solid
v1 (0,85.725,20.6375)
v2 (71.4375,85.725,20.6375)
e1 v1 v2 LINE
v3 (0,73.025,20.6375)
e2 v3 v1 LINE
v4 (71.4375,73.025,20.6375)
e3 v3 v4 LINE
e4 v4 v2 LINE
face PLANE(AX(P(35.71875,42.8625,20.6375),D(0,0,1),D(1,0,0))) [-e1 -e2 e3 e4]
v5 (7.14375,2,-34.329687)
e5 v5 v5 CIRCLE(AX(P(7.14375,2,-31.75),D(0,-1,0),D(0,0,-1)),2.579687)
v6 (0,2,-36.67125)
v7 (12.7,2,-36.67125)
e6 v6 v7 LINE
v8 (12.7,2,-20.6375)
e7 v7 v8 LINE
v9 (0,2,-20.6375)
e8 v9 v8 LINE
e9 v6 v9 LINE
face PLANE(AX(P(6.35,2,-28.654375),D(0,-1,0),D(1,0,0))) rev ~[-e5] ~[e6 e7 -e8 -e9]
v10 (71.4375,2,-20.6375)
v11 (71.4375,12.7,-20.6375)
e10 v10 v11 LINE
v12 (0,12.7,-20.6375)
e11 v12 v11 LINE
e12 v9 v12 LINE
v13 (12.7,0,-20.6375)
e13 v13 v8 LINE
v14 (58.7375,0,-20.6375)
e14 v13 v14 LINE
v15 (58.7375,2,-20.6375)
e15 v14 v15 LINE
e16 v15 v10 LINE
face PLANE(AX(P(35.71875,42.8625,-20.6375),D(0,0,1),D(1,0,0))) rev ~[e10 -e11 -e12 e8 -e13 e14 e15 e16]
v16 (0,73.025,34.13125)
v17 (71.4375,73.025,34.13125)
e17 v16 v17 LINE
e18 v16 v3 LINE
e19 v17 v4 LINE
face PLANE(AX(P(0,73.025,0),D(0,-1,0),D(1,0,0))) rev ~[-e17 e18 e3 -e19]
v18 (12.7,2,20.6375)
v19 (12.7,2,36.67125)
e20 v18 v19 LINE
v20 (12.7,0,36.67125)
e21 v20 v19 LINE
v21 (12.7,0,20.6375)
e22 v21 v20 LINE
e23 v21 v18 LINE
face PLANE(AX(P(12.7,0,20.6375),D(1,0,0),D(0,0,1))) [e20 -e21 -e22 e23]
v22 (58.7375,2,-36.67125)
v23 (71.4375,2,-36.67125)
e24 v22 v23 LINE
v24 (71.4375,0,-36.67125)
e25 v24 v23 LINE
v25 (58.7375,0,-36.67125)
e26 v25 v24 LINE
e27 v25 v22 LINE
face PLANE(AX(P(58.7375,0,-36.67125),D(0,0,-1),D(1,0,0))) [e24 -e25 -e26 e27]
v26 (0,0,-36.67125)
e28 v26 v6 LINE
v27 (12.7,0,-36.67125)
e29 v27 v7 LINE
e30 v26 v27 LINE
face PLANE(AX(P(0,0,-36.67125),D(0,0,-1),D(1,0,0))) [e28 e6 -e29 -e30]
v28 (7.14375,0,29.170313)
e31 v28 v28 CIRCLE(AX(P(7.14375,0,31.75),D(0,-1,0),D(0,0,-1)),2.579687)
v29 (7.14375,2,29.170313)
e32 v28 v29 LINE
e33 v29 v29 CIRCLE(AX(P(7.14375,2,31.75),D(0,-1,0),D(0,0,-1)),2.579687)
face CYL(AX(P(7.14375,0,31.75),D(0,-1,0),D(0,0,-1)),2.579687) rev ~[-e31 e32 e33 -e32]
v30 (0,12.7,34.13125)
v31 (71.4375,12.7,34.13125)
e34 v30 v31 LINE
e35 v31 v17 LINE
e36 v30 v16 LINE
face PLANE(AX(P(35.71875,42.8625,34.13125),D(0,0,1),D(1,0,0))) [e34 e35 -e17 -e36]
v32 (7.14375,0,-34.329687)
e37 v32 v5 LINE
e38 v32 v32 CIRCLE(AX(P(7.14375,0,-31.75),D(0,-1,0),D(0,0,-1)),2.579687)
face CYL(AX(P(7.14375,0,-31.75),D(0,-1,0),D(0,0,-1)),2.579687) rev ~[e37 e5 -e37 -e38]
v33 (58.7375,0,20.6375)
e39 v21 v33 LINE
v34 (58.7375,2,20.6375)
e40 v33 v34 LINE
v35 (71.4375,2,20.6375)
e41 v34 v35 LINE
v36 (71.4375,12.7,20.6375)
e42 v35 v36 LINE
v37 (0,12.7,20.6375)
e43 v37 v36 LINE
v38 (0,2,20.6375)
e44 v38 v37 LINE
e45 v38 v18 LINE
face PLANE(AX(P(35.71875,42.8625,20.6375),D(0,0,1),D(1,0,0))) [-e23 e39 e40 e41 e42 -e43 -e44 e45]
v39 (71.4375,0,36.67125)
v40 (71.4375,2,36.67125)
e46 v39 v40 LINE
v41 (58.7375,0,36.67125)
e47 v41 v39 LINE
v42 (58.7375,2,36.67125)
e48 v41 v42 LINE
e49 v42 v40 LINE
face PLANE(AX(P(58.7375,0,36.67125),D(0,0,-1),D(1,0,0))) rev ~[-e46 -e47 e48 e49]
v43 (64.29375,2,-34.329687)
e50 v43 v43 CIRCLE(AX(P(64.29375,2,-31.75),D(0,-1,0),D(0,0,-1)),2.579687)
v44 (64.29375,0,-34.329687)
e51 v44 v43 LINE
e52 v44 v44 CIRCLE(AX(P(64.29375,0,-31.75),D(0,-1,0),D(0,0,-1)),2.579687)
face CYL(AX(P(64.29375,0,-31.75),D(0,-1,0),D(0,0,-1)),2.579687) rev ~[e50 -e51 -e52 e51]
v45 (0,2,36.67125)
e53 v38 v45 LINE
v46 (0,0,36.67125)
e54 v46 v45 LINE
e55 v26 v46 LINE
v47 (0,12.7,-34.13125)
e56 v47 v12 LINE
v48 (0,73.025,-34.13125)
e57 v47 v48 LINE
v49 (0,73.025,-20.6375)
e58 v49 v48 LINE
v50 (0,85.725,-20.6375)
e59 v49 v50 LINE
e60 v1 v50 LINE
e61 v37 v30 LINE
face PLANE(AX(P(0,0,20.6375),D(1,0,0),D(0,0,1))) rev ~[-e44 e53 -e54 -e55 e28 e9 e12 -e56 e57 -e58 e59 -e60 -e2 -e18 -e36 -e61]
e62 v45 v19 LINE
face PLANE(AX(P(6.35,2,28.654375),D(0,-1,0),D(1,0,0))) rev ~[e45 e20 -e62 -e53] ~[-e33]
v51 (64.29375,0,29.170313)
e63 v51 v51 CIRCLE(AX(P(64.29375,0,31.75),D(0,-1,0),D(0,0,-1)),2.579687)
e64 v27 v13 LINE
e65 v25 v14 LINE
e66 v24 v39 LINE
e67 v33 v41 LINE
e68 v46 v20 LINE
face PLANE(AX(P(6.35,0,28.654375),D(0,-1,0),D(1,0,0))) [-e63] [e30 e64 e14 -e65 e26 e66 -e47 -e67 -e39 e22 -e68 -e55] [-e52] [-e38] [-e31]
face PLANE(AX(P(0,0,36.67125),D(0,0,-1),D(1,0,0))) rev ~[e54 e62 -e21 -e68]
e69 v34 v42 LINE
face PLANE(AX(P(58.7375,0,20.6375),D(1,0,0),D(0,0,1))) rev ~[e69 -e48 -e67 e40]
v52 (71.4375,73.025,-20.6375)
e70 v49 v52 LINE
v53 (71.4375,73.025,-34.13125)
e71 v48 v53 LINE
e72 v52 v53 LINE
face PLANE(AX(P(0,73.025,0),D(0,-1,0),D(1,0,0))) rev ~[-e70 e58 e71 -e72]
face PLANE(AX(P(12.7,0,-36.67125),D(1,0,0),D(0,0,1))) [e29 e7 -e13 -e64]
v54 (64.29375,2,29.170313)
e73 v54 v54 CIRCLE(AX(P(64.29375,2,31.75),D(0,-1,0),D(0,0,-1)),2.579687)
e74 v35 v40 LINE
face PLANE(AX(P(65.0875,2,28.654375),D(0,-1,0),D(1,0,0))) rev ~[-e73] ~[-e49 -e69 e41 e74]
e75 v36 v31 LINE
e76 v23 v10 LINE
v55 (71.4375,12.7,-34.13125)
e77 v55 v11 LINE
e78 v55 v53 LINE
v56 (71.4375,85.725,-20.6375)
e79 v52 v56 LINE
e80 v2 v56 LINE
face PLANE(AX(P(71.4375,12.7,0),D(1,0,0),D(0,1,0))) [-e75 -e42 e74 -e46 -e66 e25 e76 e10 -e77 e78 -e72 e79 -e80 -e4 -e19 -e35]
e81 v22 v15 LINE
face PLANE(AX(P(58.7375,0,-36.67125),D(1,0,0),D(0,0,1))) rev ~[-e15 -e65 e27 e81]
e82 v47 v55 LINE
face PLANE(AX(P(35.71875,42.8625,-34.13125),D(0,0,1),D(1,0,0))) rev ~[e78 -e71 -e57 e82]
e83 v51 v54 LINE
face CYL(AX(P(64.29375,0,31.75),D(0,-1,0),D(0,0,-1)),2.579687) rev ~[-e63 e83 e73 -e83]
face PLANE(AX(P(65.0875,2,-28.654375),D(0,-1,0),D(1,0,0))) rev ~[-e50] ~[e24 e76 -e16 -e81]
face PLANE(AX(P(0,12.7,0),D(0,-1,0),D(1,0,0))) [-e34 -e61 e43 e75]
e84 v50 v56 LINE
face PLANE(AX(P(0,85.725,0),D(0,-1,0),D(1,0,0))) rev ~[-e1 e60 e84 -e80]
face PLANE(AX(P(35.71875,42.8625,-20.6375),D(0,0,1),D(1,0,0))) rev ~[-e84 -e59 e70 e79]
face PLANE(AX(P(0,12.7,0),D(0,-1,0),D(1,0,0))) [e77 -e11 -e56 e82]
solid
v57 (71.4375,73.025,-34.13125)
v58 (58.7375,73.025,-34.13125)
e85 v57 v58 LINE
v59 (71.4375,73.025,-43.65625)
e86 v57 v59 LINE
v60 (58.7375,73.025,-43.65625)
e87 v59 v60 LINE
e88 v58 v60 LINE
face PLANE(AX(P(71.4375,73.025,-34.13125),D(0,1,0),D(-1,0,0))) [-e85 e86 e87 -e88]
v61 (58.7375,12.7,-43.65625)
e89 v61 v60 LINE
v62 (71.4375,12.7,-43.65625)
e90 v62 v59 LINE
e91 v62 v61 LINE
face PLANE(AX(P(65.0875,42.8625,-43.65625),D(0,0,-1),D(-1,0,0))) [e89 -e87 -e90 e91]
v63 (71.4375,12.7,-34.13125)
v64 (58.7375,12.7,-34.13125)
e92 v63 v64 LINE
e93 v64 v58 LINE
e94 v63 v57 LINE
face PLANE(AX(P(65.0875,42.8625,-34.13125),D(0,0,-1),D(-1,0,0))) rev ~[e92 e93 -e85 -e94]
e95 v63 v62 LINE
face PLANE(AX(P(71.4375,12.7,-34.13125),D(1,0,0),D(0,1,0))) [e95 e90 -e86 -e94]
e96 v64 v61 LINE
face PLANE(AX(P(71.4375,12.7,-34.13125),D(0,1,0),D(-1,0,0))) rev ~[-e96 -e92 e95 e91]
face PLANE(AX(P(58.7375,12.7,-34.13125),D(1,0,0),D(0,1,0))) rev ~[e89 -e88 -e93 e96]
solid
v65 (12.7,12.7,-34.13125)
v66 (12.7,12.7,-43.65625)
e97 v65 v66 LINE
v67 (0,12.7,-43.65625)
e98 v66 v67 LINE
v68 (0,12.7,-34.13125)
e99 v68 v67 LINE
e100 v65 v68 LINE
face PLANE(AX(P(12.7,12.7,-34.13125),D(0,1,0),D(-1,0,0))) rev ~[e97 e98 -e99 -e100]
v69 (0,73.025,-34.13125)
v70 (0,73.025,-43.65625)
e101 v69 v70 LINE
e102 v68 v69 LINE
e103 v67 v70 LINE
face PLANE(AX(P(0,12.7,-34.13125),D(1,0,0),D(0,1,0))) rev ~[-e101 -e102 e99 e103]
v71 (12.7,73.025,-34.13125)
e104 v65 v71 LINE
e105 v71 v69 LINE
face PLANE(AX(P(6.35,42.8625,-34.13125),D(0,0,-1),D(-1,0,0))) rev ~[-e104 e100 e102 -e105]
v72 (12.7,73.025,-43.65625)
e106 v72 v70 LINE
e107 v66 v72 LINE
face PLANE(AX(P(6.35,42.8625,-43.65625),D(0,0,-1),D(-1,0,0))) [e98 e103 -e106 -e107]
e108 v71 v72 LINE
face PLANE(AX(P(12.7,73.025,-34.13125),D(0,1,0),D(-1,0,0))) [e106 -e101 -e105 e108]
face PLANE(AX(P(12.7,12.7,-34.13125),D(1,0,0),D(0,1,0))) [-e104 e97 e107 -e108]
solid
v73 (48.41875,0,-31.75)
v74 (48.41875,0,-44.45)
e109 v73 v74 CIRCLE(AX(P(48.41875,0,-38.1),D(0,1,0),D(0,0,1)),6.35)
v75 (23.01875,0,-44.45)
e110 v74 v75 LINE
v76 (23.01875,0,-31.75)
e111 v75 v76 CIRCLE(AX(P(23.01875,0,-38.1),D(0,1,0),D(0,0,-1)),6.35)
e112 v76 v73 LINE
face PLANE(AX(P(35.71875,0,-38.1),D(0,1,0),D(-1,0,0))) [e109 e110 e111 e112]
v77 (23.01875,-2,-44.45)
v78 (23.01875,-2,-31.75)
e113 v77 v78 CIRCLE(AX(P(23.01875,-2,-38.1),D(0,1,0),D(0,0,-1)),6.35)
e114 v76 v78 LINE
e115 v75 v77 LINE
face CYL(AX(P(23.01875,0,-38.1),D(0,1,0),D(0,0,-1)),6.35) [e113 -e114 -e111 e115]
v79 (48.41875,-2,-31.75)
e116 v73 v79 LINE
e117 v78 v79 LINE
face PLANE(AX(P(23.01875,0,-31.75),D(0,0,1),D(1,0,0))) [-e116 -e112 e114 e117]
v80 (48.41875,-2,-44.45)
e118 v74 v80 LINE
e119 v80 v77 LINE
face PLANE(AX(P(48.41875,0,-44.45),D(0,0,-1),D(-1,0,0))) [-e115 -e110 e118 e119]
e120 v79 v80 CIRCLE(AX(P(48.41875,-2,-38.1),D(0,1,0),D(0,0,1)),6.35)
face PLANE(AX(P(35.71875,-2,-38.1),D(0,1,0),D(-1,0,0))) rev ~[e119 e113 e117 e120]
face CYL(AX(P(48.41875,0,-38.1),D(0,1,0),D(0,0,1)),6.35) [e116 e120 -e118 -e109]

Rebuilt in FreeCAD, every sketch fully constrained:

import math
import FreeCAD as App
import Part
import Sketcher
Q = App.Units.Quantity


def add_polygon(sketch, points):
    """Adds a closed chain of lines whose ends are joined by coincident constraints."""
    first, n = sketch.GeometryCount, len(points)
    for a, b in zip(points, points[1:] + points[:1]):
        sketch.addGeometry(Part.LineSegment(App.Vector(*a, 0), App.Vector(*b, 0)), False)
    for i in range(n):
        sketch.addConstraint(Sketcher.Constraint("Coincident", first + i, 2, first + (i + 1) % n, 1))

doc = App.newDocument("Part")
body = doc.addObject("PartDesign::Body", "Body")

# Sketch on XY plane
sketch1 = doc.addObject("Sketcher::SketchObject", "Sketch")
body.addObject(sketch1)
sketch1.AttachmentSupport = (doc.XY_Plane, [""])
sketch1.MapMode = "FlatFace"
add_polygon(sketch1, [(0, 86), (0, 0), (71, 0), (71, 86)])  # lines 0-3
sketch1.addConstraint(Sketcher.Constraint("Vertical", 0))
sketch1.addConstraint(Sketcher.Constraint("Horizontal", 1))
sketch1.addConstraint(Sketcher.Constraint("Vertical", 2))
sketch1.addConstraint(Sketcher.Constraint("Horizontal", 3))
sketch1.addConstraint(Sketcher.Constraint("Coincident", 0, 2, -1, 1))
sketch1.addConstraint(Sketcher.Constraint("DistanceX", 1, 1, 1, 2, Q("2.8125 in")))
sketch1.addConstraint(Sketcher.Constraint("DistanceY", 0, 2, 0, 1, Q("3.375 in")))
pad1 = doc.addObject("PartDesign::Pad", "Pad")
body.addObject(pad1)
pad1.Profile = sketch1
pad1.Length = Q("1.625 in")
pad1.Midplane = True

# Sketch on XY plane
sketch2 = doc.addObject("Sketcher::SketchObject", "Sketch001")
body.addObject(sketch2)
sketch2.AttachmentSupport = (doc.XY_Plane, [""])
sketch2.MapMode = "FlatFace"
add_polygon(sketch2, [(0, 73), (0, 13), (71, 13), (71, 73)])  # lines 0-3
sketch2.addConstraint(Sketcher.Constraint("Vertical", 0))
sketch2.addConstraint(Sketcher.Constraint("Horizontal", 1))
sketch2.addConstraint(Sketcher.Constraint("Vertical", 2))
sketch2.addConstraint(Sketcher.Constraint("Horizontal", 3))
sketch2.addConstraint(Sketcher.Constraint("PointOnObject", 0, 2, -2))
sketch2.addConstraint(Sketcher.Constraint("DistanceY", -1, 1, 0, 2, Q("0.5 in")))
sketch2.addConstraint(Sketcher.Constraint("DistanceX", 1, 1, 1, 2, Q("2.8125 in")))
sketch2.addConstraint(Sketcher.Constraint("DistanceY", 0, 2, 0, 1, Q("2.375 in")))
pad2 = doc.addObject("PartDesign::Pad", "Pad001")
body.addObject(pad2)
pad2.Profile = sketch2
pad2.Length = Q("2.6875 in")
pad2.Midplane = True

# Sketch on XZ plane
sketch3 = doc.addObject("Sketcher::SketchObject", "Sketch002")
body.addObject(sketch3)
sketch3.AttachmentSupport = (doc.XZ_Plane, [""])
sketch3.MapMode = "FlatFace"
add_polygon(sketch3, [(0, 37), (0, 21), (13, 21), (13, 37)])  # lines 0-3
add_polygon(sketch3, [(59, 37), (59, 21), (71, 21), (71, 37)])  # lines 4-7
add_polygon(sketch3, [(59, -21), (59, -37), (71, -37), (71, -21)])  # lines 8-11
add_polygon(sketch3, [(0, -21), (0, -37), (13, -37), (13, -21)])  # lines 12-15
sketch3.addConstraint(Sketcher.Constraint("Vertical", 0))
sketch3.addConstraint(Sketcher.Constraint("Horizontal", 1))
sketch3.addConstraint(Sketcher.Constraint("Vertical", 2))
sketch3.addConstraint(Sketcher.Constraint("Horizontal", 3))
sketch3.addConstraint(Sketcher.Constraint("Vertical", 4))
sketch3.addConstraint(Sketcher.Constraint("Horizontal", 5))
sketch3.addConstraint(Sketcher.Constraint("Vertical", 6))
sketch3.addConstraint(Sketcher.Constraint("Horizontal", 7))
sketch3.addConstraint(Sketcher.Constraint("Vertical", 8))
sketch3.addConstraint(Sketcher.Constraint("Horizontal", 9))
sketch3.addConstraint(Sketcher.Constraint("Vertical", 10))
sketch3.addConstraint(Sketcher.Constraint("Horizontal", 11))
sketch3.addConstraint(Sketcher.Constraint("Vertical", 12))
sketch3.addConstraint(Sketcher.Constraint("Horizontal", 13))
sketch3.addConstraint(Sketcher.Constraint("Vertical", 14))
sketch3.addConstraint(Sketcher.Constraint("Horizontal", 15))
sketch3.addConstraint(Sketcher.Constraint("Symmetric", 3, 2, 12, 2, -1, 1))
sketch3.addConstraint(Sketcher.Constraint("Symmetric", 7, 2, 8, 2, -1))
sketch3.addConstraint(Sketcher.Constraint("Symmetric", 5, 2, 10, 2, -1))
sketch3.addConstraint(Sketcher.Constraint("Symmetric", 1, 2, 14, 2, -1))
sketch3.addConstraint(Sketcher.Constraint("PointOnObject", 0, 2, -2))
sketch3.addConstraint(Sketcher.Constraint("Horizontal", 1, 2, 4, 2))
sketch3.addConstraint(Sketcher.Constraint("Horizontal", 3, 2, 6, 2))
sketch3.addConstraint(Sketcher.Constraint("Equal", 3, 5))
sketch3.addConstraint(Sketcher.Constraint("DistanceX", 1, 1, 1, 2, Q("0.5 in")))
sketch3.addConstraint(Sketcher.Constraint("DistanceY", -1, 1, 0, 2, Q("0.8125 in")))
sketch3.addConstraint(Sketcher.Constraint("DistanceX", -1, 1, 4, 2, Q("2.3125 in")))
sketch3.addConstraint(Sketcher.Constraint("DistanceY", 8, 2, 7, 2, Q("2.8875 in")))
pad3 = doc.addObject("PartDesign::Pad", "Pad002")
body.addObject(pad3)
pad3.Profile = sketch3
pad3.Length = 2
pad3.Reversed = True

# Sketch on XZ plane
sketch4 = doc.addObject("Sketcher::SketchObject", "Sketch003")
body.addObject(sketch4)
sketch4.AttachmentSupport = (doc.XZ_Plane, [""])
sketch4.MapMode = "FlatFace"
sketch4.addGeometry(Part.Circle(App.Vector(7.1, 31.8, 0), App.Vector(0, 0, 1), 2.6), False)
sketch4.addGeometry(Part.Circle(App.Vector(64.3, 31.8, 0), App.Vector(0, 0, 1), 2.6), False)
sketch4.addGeometry(Part.Circle(App.Vector(64.3, -31.8, 0), App.Vector(0, 0, 1), 2.6), False)
sketch4.addGeometry(Part.Circle(App.Vector(7.1, -31.8, 0), App.Vector(0, 0, 1), 2.6), False)
sketch4.addConstraint(Sketcher.Constraint("Equal", 0, 1))
sketch4.addConstraint(Sketcher.Constraint("Equal", 1, 2))
sketch4.addConstraint(Sketcher.Constraint("Equal", 2, 3))
sketch4.addConstraint(Sketcher.Constraint("Symmetric", 1, 3, 2, 3, -1))
sketch4.addConstraint(Sketcher.Constraint("Symmetric", 0, 3, 3, 3, -1))
sketch4.addConstraint(Sketcher.Constraint("Horizontal", 0, 3, 1, 3))
sketch4.addConstraint(Sketcher.Constraint("Diameter", 0, Q("0.203125 in")))
sketch4.addConstraint(Sketcher.Constraint("DistanceY", 2, 3, 1, 3, Q("2.5 in")))
sketch4.addConstraint(Sketcher.Constraint("DistanceX", 0, 3, 1, 3, Q("2.25 in")))
sketch4.addConstraint(Sketcher.Constraint("DistanceX", -1, 1, 0, 3, Q("0.28125 in")))
pocket1 = doc.addObject("PartDesign::Pocket", "Pocket")
body.addObject(pocket1)
pocket1.Profile = sketch4
pocket1.Length = 2
body2 = doc.addObject("PartDesign::Body", "Body001")

# Sketch on XY plane
sketch5 = doc.addObject("Sketcher::SketchObject", "Sketch004")
body2.addObject(sketch5)
sketch5.AttachmentSupport = (doc.getObject("XY_Plane001"), [""])
sketch5.MapMode = "FlatFace"
sketch5.AttachmentOffset = App.Placement(App.Vector(0, 0, -1.34375 * 25.4), App.Rotation())
add_polygon(sketch5, [(71, 73), (71, 13), (59, 13), (59, 73)])  # lines 0-3
sketch5.addConstraint(Sketcher.Constraint("Vertical", 0))
sketch5.addConstraint(Sketcher.Constraint("Horizontal", 1))
sketch5.addConstraint(Sketcher.Constraint("Vertical", 2))
sketch5.addConstraint(Sketcher.Constraint("Horizontal", 3))
sketch5.addConstraint(Sketcher.Constraint("DistanceX", 1, 2, 1, 1, Q("0.5 in")))
sketch5.addConstraint(Sketcher.Constraint("DistanceY", -1, 1, 0, 2, Q("0.5 in")))
sketch5.addConstraint(Sketcher.Constraint("DistanceY", 0, 2, 0, 1, Q("2.375 in")))
sketch5.addConstraint(Sketcher.Constraint("DistanceX", -1, 1, 0, 2, Q("2.8125 in")))
pad4 = doc.addObject("PartDesign::Pad", "Pad003")
body2.addObject(pad4)
pad4.Profile = sketch5
pad4.Length = Q("0.375 in")
pad4.Reversed = True
body3 = doc.addObject("PartDesign::Body", "Body002")

# Sketch on XY plane
sketch6 = doc.addObject("Sketcher::SketchObject", "Sketch005")
body3.addObject(sketch6)
sketch6.AttachmentSupport = (doc.getObject("XY_Plane002"), [""])
sketch6.MapMode = "FlatFace"
sketch6.AttachmentOffset = App.Placement(App.Vector(0, 0, -1.34375 * 25.4), App.Rotation())
add_polygon(sketch6, [(13, 73), (13, 13), (0, 13), (0, 73)])  # lines 0-3
sketch6.addConstraint(Sketcher.Constraint("Vertical", 0))
sketch6.addConstraint(Sketcher.Constraint("Horizontal", 1))
sketch6.addConstraint(Sketcher.Constraint("Vertical", 2))
sketch6.addConstraint(Sketcher.Constraint("Horizontal", 3))
sketch6.addConstraint(Sketcher.Constraint("PointOnObject", 1, 2, -2))
sketch6.addConstraint(Sketcher.Constraint("DistanceX", 1, 2, 1, 1, Q("0.5 in")))
sketch6.addConstraint(Sketcher.Constraint("DistanceY", -1, 1, 0, 2, Q("0.5 in")))
sketch6.addConstraint(Sketcher.Constraint("DistanceY", 0, 2, 0, 1, Q("2.375 in")))
pad5 = doc.addObject("PartDesign::Pad", "Pad004")
body3.addObject(pad5)
pad5.Profile = sketch6
pad5.Length = Q("0.375 in")
pad5.Reversed = True
body4 = doc.addObject("PartDesign::Body", "Body003")

# Sketch on XZ plane
sketch7 = doc.addObject("Sketcher::SketchObject", "Sketch006")
body4.addObject(sketch7)
sketch7.AttachmentSupport = (doc.getObject("XZ_Plane003"), [""])
sketch7.MapMode = "FlatFace"
sketch7.addGeometry(Part.ArcOfCircle(Part.Circle(App.Vector(23, -38, 0), App.Vector(0, 0, 1), 6), math.radians(90), math.radians(270)), False)
sketch7.addGeometry(Part.LineSegment(App.Vector(23, -44, 0), App.Vector(48, -44, 0)), False)
sketch7.addGeometry(Part.ArcOfCircle(Part.Circle(App.Vector(48, -38, 0), App.Vector(0, 0, 1), 6), math.radians(-90), math.radians(90)), False)
sketch7.addGeometry(Part.LineSegment(App.Vector(48, -32, 0), App.Vector(23, -32, 0)), False)
sketch7.addConstraint(Sketcher.Constraint("Tangent", 0, 2, 1, 1))
sketch7.addConstraint(Sketcher.Constraint("Tangent", 1, 2, 2, 1))
sketch7.addConstraint(Sketcher.Constraint("Tangent", 2, 2, 3, 1))
sketch7.addConstraint(Sketcher.Constraint("Tangent", 3, 2, 0, 1))
sketch7.addConstraint(Sketcher.Constraint("Horizontal", 1))
sketch7.addConstraint(Sketcher.Constraint("Horizontal", 3))
sketch7.addConstraint(Sketcher.Constraint("DistanceX", 1, 1, 1, 2, Q("1 in")))
sketch7.addConstraint(Sketcher.Constraint("Radius", 0, Q("0.25 in")))
sketch7.addConstraint(Sketcher.Constraint("DistanceY", 0, 3, -1, 1, Q("1.5 in")))
sketch7.addConstraint(Sketcher.Constraint("DistanceX", -1, 1, 0, 3, Q("0.90625 in")))
pad6 = doc.addObject("PartDesign::Pad", "Pad005")
body4.addObject(pad6)
pad6.Profile = sketch7
pad6.Length = 2

doc.recompute()
